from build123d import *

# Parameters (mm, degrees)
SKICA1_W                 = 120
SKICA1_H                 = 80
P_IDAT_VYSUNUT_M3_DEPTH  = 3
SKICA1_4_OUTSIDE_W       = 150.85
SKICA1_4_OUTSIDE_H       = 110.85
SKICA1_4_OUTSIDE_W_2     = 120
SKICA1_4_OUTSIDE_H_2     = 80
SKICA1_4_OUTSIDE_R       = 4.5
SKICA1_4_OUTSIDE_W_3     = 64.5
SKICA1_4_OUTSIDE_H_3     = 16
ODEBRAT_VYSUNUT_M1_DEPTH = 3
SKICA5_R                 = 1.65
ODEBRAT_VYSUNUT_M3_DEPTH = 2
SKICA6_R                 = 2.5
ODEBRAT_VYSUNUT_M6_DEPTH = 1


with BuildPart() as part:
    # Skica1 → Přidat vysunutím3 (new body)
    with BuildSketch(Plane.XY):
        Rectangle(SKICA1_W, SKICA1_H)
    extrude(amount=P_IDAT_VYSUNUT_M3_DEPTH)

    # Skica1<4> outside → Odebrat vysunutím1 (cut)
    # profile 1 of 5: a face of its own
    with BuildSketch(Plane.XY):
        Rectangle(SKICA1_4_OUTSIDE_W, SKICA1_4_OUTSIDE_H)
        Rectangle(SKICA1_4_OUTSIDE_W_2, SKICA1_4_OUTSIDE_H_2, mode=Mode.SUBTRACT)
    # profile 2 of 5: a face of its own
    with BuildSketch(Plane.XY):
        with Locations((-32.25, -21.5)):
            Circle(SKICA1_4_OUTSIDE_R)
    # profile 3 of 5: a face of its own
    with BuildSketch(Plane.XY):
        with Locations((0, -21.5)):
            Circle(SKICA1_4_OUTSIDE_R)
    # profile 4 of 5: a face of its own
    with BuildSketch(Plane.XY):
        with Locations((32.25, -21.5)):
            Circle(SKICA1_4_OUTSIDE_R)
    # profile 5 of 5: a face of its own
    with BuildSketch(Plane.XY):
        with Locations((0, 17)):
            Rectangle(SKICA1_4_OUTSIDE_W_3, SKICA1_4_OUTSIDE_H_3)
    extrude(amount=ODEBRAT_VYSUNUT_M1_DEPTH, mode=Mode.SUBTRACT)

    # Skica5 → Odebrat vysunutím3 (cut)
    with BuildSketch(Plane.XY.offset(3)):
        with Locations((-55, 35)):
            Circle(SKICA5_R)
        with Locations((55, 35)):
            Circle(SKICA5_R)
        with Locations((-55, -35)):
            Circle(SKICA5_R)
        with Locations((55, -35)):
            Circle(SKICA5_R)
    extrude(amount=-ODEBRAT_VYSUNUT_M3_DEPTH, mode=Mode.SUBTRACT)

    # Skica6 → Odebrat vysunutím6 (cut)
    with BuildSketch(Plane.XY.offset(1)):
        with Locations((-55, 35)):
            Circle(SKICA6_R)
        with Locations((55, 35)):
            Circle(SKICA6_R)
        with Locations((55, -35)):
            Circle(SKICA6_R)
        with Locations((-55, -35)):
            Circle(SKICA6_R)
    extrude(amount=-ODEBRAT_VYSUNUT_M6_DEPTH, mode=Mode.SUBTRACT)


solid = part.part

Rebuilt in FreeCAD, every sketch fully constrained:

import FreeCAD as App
import Part
import Sketcher

V = App.Vector
Q = App.Units.Quantity

doc = App.newDocument("Part")
params = doc.addObject("Spreadsheet::Sheet", "Params")
for row, (alias, value) in enumerate([
    ("sketch1_width", "120 mm"),
    ("sketch1_height", "80 mm"),
    ("pad1_length", "3 mm"),
    ("sketch2_diameter", "9 mm"),
    ("sketch2_width", "120 mm"),
    ("sketch2_height", "80 mm"),
    ("sketch2_height2", "16 mm"),
    ("sketch2_width2", "64.5 mm"),
    ("pocket1_length", "3 mm"),
    ("sketch3_diameter", "3.3 mm"),
    ("pocket2_length", "2 mm"),
    ("sketch4_diameter", "5 mm"),
    ("pocket3_length", "1 mm"),
], start=1):
    params.set(f"A{row}", alias)
    params.set(f"B{row}", "=" + value)
    params.setAlias(f"B{row}", alias)

body = doc.addObject("PartDesign::Body", "Body")

# Sketch on XY plane
sketch1 = body.newObject("Sketcher::SketchObject", "Sketch")
sketch1.AttachmentSupport = (doc.getObject("XY_Plane"), [""])
sketch1.MapMode = "FlatFace"
sketch1.addGeometry(Part.LineSegment(V(-60, 40, 0), V(-60, -40, 0)), False)
sketch1.addGeometry(Part.LineSegment(V(-60, -40, 0), V(60, -40, 0)), False)
sketch1.addGeometry(Part.LineSegment(V(60, -40, 0), V(60, 40, 0)), False)
sketch1.addGeometry(Part.LineSegment(V(60, 40, 0), V(-60, 40, 0)), False)
sketch1.addConstraint(Sketcher.Constraint("Coincident", 0, 2, 1, 1))
sketch1.addConstraint(Sketcher.Constraint("Coincident", 1, 2, 2, 1))
sketch1.addConstraint(Sketcher.Constraint("Coincident", 2, 2, 3, 1))
sketch1.addConstraint(Sketcher.Constraint("Coincident", 3, 2, 0, 1))
sketch1.addConstraint(Sketcher.Constraint("Vertical", 0))
sketch1.addConstraint(Sketcher.Constraint("Horizontal", 1))
sketch1.addConstraint(Sketcher.Constraint("Vertical", 2))
sketch1.addConstraint(Sketcher.Constraint("Horizontal", 3))
sketch1.addConstraint(Sketcher.Constraint("Symmetric", 0, 2, 2, 2, -1, 1))
sketch1.addConstraint(Sketcher.Constraint("DistanceX", 1, 1, 1, 2, Q("120 mm")))
sketch1.addConstraint(Sketcher.Constraint("DistanceY", 0, 2, 0, 1, Q("80 mm")))
sketch1.setExpression("Constraints[9]", "Params.sketch1_width")
sketch1.setExpression("Constraints[10]", "Params.sketch1_height")
pad1 = body.newObject("PartDesign::Pad", "Pad")
pad1.Profile = sketch1
pad1.setExpression("Length", "Params.pad1_length")

# Sketch on XY plane
sketch2 = body.newObject("Sketcher::SketchObject", "Sketch001")
sketch2.AttachmentSupport = (doc.getObject("XY_Plane"), [""])
sketch2.MapMode = "FlatFace"
sketch2.addGeometry(Part.LineSegment(V(-75.4, 55.4, 0), V(-75.4, -55.4, 0)), False)
sketch2.addGeometry(Part.LineSegment(V(-75.4, -55.4, 0), V(75.4, -55.4, 0)), False)
sketch2.addGeometry(Part.LineSegment(V(75.4, -55.4, 0), V(75.4, 55.4, 0)), False)
sketch2.addGeometry(Part.LineSegment(V(75.4, 55.4, 0), V(-75.4, 55.4, 0)), False)
sketch2.addGeometry(Part.LineSegment(V(60, -40, 0), V(-60, -40, 0)), False)
sketch2.addGeometry(Part.LineSegment(V(-60, -40, 0), V(-60, 40, 0)), False)
sketch2.addGeometry(Part.LineSegment(V(-60, 40, 0), V(60, 40, 0)), False)
sketch2.addGeometry(Part.LineSegment(V(60, 40, 0), V(60, -40, 0)), False)
sketch2.addGeometry(Part.Circle(V(-32.2, -21.5, 0), V(0, 0, 1), 4.5), False)
sketch2.addGeometry(Part.Circle(V(0, -21.5, 0), V(0, 0, 1), 4.5), False)
sketch2.addGeometry(Part.Circle(V(32.2, -21.5, 0), V(0, 0, 1), 4.5), False)
sketch2.addGeometry(Part.LineSegment(V(-32.2, 25, 0), V(-32.2, 9, 0)), False)
sketch2.addGeometry(Part.LineSegment(V(-32.2, 9, 0), V(32.2, 9, 0)), False)
sketch2.addGeometry(Part.LineSegment(V(32.2, 9, 0), V(32.2, 25, 0)), False)
sketch2.addGeometry(Part.LineSegment(V(32.2, 25, 0), V(-32.2, 25, 0)), False)
sketch2.addConstraint(Sketcher.Constraint("Coincident", 0, 2, 1, 1))
sketch2.addConstraint(Sketcher.Constraint("Coincident", 1, 2, 2, 1))
sketch2.addConstraint(Sketcher.Constraint("Coincident", 2, 2, 3, 1))
sketch2.addConstraint(Sketcher.Constraint("Coincident", 3, 2, 0, 1))
sketch2.addConstraint(Sketcher.Constraint("Coincident", 4, 2, 5, 1))
sketch2.addConstraint(Sketcher.Constraint("Coincident", 5, 2, 6, 1))
sketch2.addConstraint(Sketcher.Constraint("Coincident", 6, 2, 7, 1))
sketch2.addConstraint(Sketcher.Constraint("Coincident", 7, 2, 4, 1))
sketch2.addConstraint(Sketcher.Constraint("Coincident", 11, 2, 12, 1))
sketch2.addConstraint(Sketcher.Constraint("Coincident", 12, 2, 13, 1))
sketch2.addConstraint(Sketcher.Constraint("Coincident", 13, 2, 14, 1))
sketch2.addConstraint(Sketcher.Constraint("Coincident", 14, 2, 11, 1))
sketch2.addConstraint(Sketcher.Constraint("Vertical", 0))
sketch2.addConstraint(Sketcher.Constraint("Horizontal", 1))
sketch2.addConstraint(Sketcher.Constraint("Vertical", 2))
sketch2.addConstraint(Sketcher.Constraint("Horizontal", 3))
sketch2.addConstraint(Sketcher.Constraint("Horizontal", 4))
sketch2.addConstraint(Sketcher.Constraint("Vertical", 5))
sketch2.addConstraint(Sketcher.Constraint("Horizontal", 6))
sketch2.addConstraint(Sketcher.Constraint("Vertical", 7))
sketch2.addConstraint(Sketcher.Constraint("Vertical", 11))
sketch2.addConstraint(Sketcher.Constraint("Horizontal", 12))
sketch2.addConstraint(Sketcher.Constraint("Vertical", 13))
sketch2.addConstraint(Sketcher.Constraint("Horizontal", 14))
sketch2.addConstraint(Sketcher.Constraint("Equal", 8, 9))
sketch2.addConstraint(Sketcher.Constraint("Equal", 9, 10))
sketch2.addConstraint(Sketcher.Constraint("Symmetric", 0, 2, 2, 2, -1, 1))
sketch2.addConstraint(Sketcher.Constraint("Symmetric", 4, 2, 6, 2, -1, 1))
sketch2.addConstraint(Sketcher.Constraint("Symmetric", 8, 3, 10, 3, -2))
sketch2.addConstraint(Sketcher.Constraint("PointOnObject", 9, 3, -2))
sketch2.addConstraint(Sketcher.Constraint("Horizontal", 8, 3, 9, 3))
sketch2.addConstraint(Sketcher.Constraint("Vertical", 8, 3, 11, 2))
sketch2.addConstraint(Sketcher.Constraint("Vertical", 10, 3, 12, 2))
sketch2.addConstraint(Sketcher.Constraint("Diameter", 8, Q("9 mm")))
sketch2.addConstraint(Sketcher.Constraint("DistanceX", 4, 2, 4, 1, Q("120 mm")))
sketch2.addConstraint(Sketcher.Constraint("DistanceY", 5, 1, 5, 2, Q("80 mm")))
sketch2.addConstraint(Sketcher.Constraint("DistanceY", 11, 2, 11, 1, Q("16 mm")))
sketch2.addConstraint(Sketcher.Constraint("DistanceX", 12, 1, 12, 2, Q("64.5 mm")))
sketch2.addConstraint(Sketcher.Constraint("DistanceY", -1, 1, 11, 2, Q("9 mm")))
sketch2.addConstraint(Sketcher.Constraint("DistanceX", 1, 1, 1, 2, Q("150.85 mm")))
sketch2.addConstraint(Sketcher.Constraint("DistanceY", 0, 2, 0, 1, Q("110.85 mm")))
sketch2.addConstraint(Sketcher.Constraint("DistanceY", 8, 3, -1, 1, Q("21.5 mm")))
sketch2.setExpression("Constraints[33]", "Params.sketch2_diameter")
sketch2.setExpression("Constraints[34]", "Params.sketch2_width")
sketch2.setExpression("Constraints[35]", "Params.sketch2_height")
sketch2.setExpression("Constraints[36]", "Params.sketch2_height2")
sketch2.setExpression("Constraints[37]", "Params.sketch2_width2")
pocket1 = body.newObject("PartDesign::Pocket", "Pocket")
pocket1.Profile = sketch2
pocket1.setExpression("Length", "Params.pocket1_length")
pocket1.Reversed = True

# Sketch on XY plane
sketch3 = body.newObject("Sketcher::SketchObject", "Sketch002")
sketch3.AttachmentSupport = (doc.getObject("XY_Plane"), [""])
sketch3.MapMode = "FlatFace"
sketch3.AttachmentOffset = App.Placement(V(0, 0, 3), App.Rotation())
sketch3.addGeometry(Part.Circle(V(-55, 35, 0), V(0, 0, 1), 1.6), False)
sketch3.addGeometry(Part.Circle(V(55, 35, 0), V(0, 0, 1), 1.6), False)
sketch3.addGeometry(Part.Circle(V(-55, -35, 0), V(0, 0, 1), 1.6), False)
sketch3.addGeometry(Part.Circle(V(55, -35, 0), V(0, 0, 1), 1.6), False)
sketch3.addConstraint(Sketcher.Constraint("Equal", 0, 1))
sketch3.addConstraint(Sketcher.Constraint("Equal", 1, 2))
sketch3.addConstraint(Sketcher.Constraint("Equal", 2, 3))
sketch3.addConstraint(Sketcher.Constraint("Symmetric", 1, 3, 2, 3, -1, 1))
sketch3.addConstraint(Sketcher.Constraint("Symmetric", 0, 3, 3, 3, -1, 1))
sketch3.addConstraint(Sketcher.Constraint("Symmetric", 0, 3, 1, 3, -2))
sketch3.addConstraint(Sketcher.Constraint("Diameter", 0, Q("3.3 mm")))
sketch3.addConstraint(Sketcher.Constraint("DistanceX", 0, 3, -1, 1, Q("55 mm")))
sketch3.addConstraint(Sketcher.Constraint("DistanceY", -1, 1, 0, 3, Q("35 mm")))
sketch3.setExpression("Constraints[6]", "Params.sketch3_diameter")
pocket2 = body.newObject("PartDesign::Pocket", "Pocket001")
pocket2.Profile = sketch3
pocket2.setExpression("Length", "Params.pocket2_length")

# Sketch on XY plane
sketch4 = body.newObject("Sketcher::SketchObject", "Sketch003")
sketch4.AttachmentSupport = (doc.getObject("XY_Plane"), [""])
sketch4.MapMode = "FlatFace"
sketch4.AttachmentOffset = App.Placement(V(0, 0, 1), App.Rotation())
sketch4.addGeometry(Part.Circle(V(-55, 35, 0), V(0, 0, 1), 2.5), False)
sketch4.addGeometry(Part.Circle(V(55, 35, 0), V(0, 0, 1), 2.5), False)
sketch4.addGeometry(Part.Circle(V(55, -35, 0), V(0, 0, 1), 2.5), False)
sketch4.addGeometry(Part.Circle(V(-55, -35, 0), V(0, 0, 1), 2.5), False)
sketch4.addConstraint(Sketcher.Constraint("Equal", 0, 1))
sketch4.addConstraint(Sketcher.Constraint("Equal", 1, 2))
sketch4.addConstraint(Sketcher.Constraint("Equal", 2, 3))
sketch4.addConstraint(Sketcher.Constraint("Symmetric", 0, 3, 2, 3, -1, 1))
sketch4.addConstraint(Sketcher.Constraint("Symmetric", 1, 3, 3, 3, -1, 1))
sketch4.addConstraint(Sketcher.Constraint("Symmetric", 0, 3, 1, 3, -2))
sketch4.addConstraint(Sketcher.Constraint("Diameter", 0, Q("5 mm")))
sketch4.addConstraint(Sketcher.Constraint("DistanceX", 0, 3, -1, 1, Q("55 mm")))
sketch4.addConstraint(Sketcher.Constraint("DistanceY", -1, 1, 0, 3, Q("35 mm")))
sketch4.setExpression("Constraints[6]", "Params.sketch4_diameter")
pocket3 = body.newObject("PartDesign::Pocket", "Pocket002")
pocket3.Profile = sketch4
pocket3.setExpression("Length", "Params.pocket3_length")

doc.recompute()
